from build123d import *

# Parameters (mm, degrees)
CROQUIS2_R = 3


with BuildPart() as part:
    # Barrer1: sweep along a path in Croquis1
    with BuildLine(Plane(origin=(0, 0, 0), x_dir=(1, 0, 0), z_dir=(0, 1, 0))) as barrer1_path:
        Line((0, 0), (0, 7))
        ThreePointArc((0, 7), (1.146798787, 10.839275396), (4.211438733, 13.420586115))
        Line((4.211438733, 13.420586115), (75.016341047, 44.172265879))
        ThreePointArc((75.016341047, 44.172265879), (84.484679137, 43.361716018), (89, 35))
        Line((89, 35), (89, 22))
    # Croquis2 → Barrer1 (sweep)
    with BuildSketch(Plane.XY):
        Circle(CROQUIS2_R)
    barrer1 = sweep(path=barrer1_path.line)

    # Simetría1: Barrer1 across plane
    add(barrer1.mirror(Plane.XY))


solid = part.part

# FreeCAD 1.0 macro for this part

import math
import FreeCAD as App
import Part
import Sketcher
from FreeCAD import Vector

doc = App.newDocument("Part")
body = doc.addObject("PartDesign::Body", "Body")

# Sketch on XY plane
sketch1 = body.newObject("Sketcher::SketchObject", "Sketch")
sketch1.AttachmentSupport = (doc.getObject("XY_Plane"), [""])
sketch1.MapMode = "FlatFace"
sketch1.addGeometry(Part.Circle(Vector(0, 0, 0), Vector(0, 0, 1), 3), False)
sketch1.addConstraint([
    Sketcher.Constraint("Coincident", 0, 3, -1, 1),
    Sketcher.Constraint("Diameter", 0, 6.0),
])

# Sketch on XZ plane
sketch2 = body.newObject("Sketcher::SketchObject", "Sketch001")
sketch2.AttachmentSupport = (doc.getObject("XZ_Plane"), [""])
sketch2.MapMode = "FlatFace"
sketch2.addGeometry([
    Part.LineSegment(Vector(0, 0, 0), Vector(0, -7, 0)),  # 0
    Part.ArcOfCircle(Part.Circle(Vector(7, -7, 0), Vector(0, 0, 1), 7), math.radians(180), math.radians(247)),  # 1
    Part.LineSegment(Vector(4, -13, 0), Vector(75, -44, 0)),  # 2
    Part.ArcOfCircle(Part.Circle(Vector(79, -35, 0), Vector(0, 0, 1), 10), math.radians(-113), math.radians(0)),  # 3
    Part.LineSegment(Vector(89, -35, 0), Vector(89, -22, 0)),  # 4
], False)
sketch2.addConstraint([
    Sketcher.Constraint("Tangent", 0, 2, 1, 1),
    Sketcher.Constraint("Tangent", 1, 2, 2, 1),
    Sketcher.Constraint("Tangent", 2, 2, 3, 1),
    Sketcher.Constraint("Tangent", 3, 2, 4, 1),
    Sketcher.Constraint("Vertical", 0),
    Sketcher.Constraint("Vertical", 4),
    Sketcher.Constraint("Coincident", 0, 1, -1, 1),
    Sketcher.Constraint("Radius", 1, 7.0),
    Sketcher.Constraint("Radius", 3, 10.0),
    Sketcher.Constraint("DistanceY", 0, 2, 0, 1, 7.0),
    Sketcher.Constraint("DistanceY", 4, 1, 4, 2, 13.0),
    Sketcher.Constraint("DistanceX", -1, 1, 3, 3, 79.0),
    Sketcher.Constraint("DistanceY", 3, 3, -1, 1, 35.0),
])
doc.recompute()

additivepipe = body.newObject("PartDesign::AdditivePipe", "AdditivePipe")
additivepipe.Profile = sketch1
additivepipe.Spine = (sketch2, ["Edge1", "Edge2", "Edge3", "Edge4", "Edge5"])
doc.recompute()

mirrored = body.newObject("PartDesign::Mirrored", "Mirrored")
mirrored.Originals = [additivepipe]
mirrored.MirrorPlane = (doc.getObject("XY_Plane"), [""])
body.Tip = mirrored

doc.recompute()
